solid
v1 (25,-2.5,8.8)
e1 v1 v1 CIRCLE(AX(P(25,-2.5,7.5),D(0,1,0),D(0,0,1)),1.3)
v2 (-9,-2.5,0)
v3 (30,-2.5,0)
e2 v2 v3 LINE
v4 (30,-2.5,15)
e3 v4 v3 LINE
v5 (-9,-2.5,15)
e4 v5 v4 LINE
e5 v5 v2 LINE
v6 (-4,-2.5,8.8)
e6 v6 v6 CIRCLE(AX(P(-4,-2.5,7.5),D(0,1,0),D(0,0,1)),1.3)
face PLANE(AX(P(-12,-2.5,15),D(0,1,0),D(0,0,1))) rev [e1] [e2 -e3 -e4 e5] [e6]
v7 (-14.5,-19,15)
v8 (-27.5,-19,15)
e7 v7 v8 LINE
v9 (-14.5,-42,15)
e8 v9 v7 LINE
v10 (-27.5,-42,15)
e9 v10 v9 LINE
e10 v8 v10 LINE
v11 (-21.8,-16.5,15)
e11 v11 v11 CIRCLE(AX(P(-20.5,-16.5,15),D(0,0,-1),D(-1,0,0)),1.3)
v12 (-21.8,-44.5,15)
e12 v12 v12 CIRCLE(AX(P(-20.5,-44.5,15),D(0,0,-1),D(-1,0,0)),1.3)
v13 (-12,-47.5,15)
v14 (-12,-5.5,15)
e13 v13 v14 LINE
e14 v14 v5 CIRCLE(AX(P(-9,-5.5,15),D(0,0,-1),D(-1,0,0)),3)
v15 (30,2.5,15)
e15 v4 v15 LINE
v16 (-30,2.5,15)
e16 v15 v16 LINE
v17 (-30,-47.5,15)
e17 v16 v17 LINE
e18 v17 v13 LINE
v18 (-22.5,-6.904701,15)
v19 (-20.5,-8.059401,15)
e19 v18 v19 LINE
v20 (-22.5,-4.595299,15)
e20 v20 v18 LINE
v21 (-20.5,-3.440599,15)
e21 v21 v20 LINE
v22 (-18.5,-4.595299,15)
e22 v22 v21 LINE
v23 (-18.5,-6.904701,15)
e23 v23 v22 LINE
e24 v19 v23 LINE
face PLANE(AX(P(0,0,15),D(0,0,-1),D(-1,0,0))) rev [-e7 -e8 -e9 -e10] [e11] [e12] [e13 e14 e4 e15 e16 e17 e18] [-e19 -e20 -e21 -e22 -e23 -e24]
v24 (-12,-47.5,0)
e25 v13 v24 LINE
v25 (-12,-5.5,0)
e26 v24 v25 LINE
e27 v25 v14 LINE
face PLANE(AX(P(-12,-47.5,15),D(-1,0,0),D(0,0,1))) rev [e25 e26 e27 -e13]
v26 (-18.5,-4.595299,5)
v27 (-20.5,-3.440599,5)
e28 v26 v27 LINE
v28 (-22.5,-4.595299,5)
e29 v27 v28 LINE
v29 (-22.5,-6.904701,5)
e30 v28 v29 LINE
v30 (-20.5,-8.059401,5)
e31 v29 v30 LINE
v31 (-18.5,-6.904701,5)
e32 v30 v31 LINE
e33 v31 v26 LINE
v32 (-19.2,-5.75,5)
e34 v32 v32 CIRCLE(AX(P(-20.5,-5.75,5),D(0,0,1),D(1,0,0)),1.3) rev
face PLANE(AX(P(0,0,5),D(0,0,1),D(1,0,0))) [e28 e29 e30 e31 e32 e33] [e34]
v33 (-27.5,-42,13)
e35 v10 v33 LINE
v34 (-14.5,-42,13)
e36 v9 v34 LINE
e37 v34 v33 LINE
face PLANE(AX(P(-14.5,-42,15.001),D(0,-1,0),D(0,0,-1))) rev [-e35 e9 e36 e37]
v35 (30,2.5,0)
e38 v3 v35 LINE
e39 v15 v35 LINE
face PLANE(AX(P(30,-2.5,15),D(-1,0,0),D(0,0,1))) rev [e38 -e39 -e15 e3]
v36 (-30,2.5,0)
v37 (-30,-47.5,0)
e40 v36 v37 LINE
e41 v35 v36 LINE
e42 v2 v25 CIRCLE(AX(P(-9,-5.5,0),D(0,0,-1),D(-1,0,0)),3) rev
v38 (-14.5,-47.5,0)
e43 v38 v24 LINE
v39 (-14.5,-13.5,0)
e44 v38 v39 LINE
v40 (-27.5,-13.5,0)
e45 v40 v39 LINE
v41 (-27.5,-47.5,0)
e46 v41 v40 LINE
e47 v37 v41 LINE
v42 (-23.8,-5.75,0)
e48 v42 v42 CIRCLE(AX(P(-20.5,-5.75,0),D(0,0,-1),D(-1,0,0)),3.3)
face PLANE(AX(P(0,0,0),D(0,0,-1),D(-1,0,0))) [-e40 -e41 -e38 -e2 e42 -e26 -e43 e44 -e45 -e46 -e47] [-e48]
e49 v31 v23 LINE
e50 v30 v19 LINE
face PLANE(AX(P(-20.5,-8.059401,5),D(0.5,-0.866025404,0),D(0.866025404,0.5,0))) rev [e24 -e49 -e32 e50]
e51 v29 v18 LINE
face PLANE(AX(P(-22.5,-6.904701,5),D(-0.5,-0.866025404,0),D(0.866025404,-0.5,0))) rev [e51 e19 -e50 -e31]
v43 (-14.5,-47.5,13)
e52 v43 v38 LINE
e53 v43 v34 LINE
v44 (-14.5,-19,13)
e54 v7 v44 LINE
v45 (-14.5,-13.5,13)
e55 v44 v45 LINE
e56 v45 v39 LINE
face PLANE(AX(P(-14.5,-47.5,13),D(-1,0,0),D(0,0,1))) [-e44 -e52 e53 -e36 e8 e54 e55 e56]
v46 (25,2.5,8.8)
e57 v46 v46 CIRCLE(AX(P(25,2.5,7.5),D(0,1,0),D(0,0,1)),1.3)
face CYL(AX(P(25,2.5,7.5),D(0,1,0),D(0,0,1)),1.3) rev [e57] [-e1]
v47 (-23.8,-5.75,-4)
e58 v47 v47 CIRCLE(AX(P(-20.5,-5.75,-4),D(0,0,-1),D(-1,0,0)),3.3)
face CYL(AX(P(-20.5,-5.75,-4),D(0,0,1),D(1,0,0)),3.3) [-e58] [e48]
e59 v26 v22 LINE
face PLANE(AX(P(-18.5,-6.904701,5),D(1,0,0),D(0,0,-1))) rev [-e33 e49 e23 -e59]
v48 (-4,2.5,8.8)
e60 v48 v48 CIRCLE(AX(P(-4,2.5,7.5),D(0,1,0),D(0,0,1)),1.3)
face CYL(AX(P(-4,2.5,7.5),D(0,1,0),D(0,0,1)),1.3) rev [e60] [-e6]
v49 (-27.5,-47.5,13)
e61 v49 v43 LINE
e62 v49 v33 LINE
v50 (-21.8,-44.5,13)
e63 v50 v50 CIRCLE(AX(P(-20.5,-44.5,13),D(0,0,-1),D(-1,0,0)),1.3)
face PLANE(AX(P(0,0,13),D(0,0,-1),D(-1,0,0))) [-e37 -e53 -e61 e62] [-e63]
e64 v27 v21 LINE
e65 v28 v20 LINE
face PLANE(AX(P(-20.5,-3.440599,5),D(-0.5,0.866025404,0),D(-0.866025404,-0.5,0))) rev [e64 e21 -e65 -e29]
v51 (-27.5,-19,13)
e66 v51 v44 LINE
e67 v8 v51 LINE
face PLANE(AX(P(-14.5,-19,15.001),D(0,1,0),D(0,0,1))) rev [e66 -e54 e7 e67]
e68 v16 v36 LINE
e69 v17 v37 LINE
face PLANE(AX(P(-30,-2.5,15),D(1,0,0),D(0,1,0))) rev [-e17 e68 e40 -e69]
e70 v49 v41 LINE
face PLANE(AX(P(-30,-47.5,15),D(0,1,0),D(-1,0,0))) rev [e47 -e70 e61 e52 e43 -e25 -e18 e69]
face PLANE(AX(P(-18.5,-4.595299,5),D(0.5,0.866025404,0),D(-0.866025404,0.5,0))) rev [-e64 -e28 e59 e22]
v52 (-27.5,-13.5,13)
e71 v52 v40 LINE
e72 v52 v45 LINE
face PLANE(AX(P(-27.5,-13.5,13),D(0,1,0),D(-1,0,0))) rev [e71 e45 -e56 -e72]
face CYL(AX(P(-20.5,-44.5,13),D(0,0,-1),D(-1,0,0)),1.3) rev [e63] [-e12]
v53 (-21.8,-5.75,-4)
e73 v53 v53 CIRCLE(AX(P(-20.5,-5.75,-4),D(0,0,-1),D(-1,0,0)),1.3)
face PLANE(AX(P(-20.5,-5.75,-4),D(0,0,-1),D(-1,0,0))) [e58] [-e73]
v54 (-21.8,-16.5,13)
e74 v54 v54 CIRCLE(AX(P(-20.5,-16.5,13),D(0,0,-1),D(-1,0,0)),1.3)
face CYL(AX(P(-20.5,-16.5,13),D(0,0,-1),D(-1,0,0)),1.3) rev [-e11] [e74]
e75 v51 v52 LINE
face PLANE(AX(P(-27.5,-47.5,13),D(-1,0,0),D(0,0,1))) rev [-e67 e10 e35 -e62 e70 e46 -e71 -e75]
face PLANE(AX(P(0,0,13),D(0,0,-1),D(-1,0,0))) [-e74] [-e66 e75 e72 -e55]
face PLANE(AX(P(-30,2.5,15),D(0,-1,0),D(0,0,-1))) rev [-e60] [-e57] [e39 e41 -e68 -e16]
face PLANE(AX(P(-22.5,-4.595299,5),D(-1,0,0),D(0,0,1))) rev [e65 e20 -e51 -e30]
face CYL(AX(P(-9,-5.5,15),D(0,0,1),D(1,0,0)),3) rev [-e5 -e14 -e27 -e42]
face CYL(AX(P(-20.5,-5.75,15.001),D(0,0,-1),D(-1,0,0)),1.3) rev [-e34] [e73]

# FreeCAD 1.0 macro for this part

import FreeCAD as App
import Part
import Sketcher

V = App.Vector
Q = App.Units.Quantity


def edges_at(feature, points):
    """Names of the edges that pass closest to the given points."""
    edges = feature.Shape.Edges
    near = lambda p: min(range(len(edges)), key=lambda i: edges[i].distToShape(Part.Vertex(*p))[0])
    return sorted({f"Edge{near(p) + 1}" for p in points})

doc = App.newDocument("Part")
body = doc.addObject("PartDesign::Body", "Body")

sketch1 = doc.addObject("Sketcher::SketchObject", "Sketch")
body.addObject(sketch1)
sketch1.AttachmentSupport = (doc.XY_Plane, [""])
sketch1.MapMode = "FlatFace"
sketch1.addGeometry([
    Part.LineSegment(V(-30, 2, 0), V(-30, -48, 0)),
    Part.LineSegment(V(-30, -48, 0), V(-12, -48, 0)),
    Part.LineSegment(V(-12, -48, 0), V(-12, -2, 0)),
    Part.LineSegment(V(-12, -2, 0), V(30, -2, 0)),
    Part.LineSegment(V(30, -2, 0), V(30, 2, 0)),
    Part.LineSegment(V(30, 2, 0), V(-30, 2, 0)),
], False)
sketch1.addConstraint([
    Sketcher.Constraint("Coincident", 0, 2, 1, 1),
    Sketcher.Constraint("Coincident", 1, 2, 2, 1),
    Sketcher.Constraint("Coincident", 2, 2, 3, 1),
    Sketcher.Constraint("Coincident", 3, 2, 4, 1),
    Sketcher.Constraint("Coincident", 4, 2, 5, 1),
    Sketcher.Constraint("Coincident", 5, 2, 0, 1),
    Sketcher.Constraint("Vertical", 0),
    Sketcher.Constraint("Horizontal", 1),
    Sketcher.Constraint("Vertical", 2),
    Sketcher.Constraint("Horizontal", 3),
    Sketcher.Constraint("Vertical", 4),
    Sketcher.Constraint("Horizontal", 5),
    Sketcher.Constraint("Symmetric", 3, 2, 5, 2, -1, 1),
    Sketcher.Constraint("DistanceX", 1, 1, 1, 2, Q("18 mm")),
    Sketcher.Constraint("DistanceX", 3, 1, 3, 2, Q("42 mm")),
    Sketcher.Constraint("DistanceY", 0, 2, 0, 1, Q("50 mm")),
    Sketcher.Constraint("DistanceY", 2, 1, 2, 2, Q("45 mm")),
])
pad1 = doc.addObject("PartDesign::Pad", "Pad")
body.addObject(pad1)
pad1.Profile = sketch1
pad1.Length = 15

sketch2 = doc.addObject("Sketcher::SketchObject", "Sketch001")
body.addObject(sketch2)
sketch2.AttachmentSupport = (doc.XZ_Plane, [""])
sketch2.MapMode = "FlatFace"
sketch2.AttachmentOffset = App.Placement(V(0, 0, -2.5), App.Rotation())
sketch2.addGeometry([
    Part.Circle(V(25, 7.5, 0), V(0, 0, 1), 1.3),
    Part.Circle(V(-4, 7.5, 0), V(0, 0, 1), 1.3),
], False)
sketch2.addConstraint([
    Sketcher.Constraint("Equal", 0, 1),
    Sketcher.Constraint("Horizontal", 0, 3, 1, 3),
    Sketcher.Constraint("Diameter", 0, Q("2.6 mm")),
    Sketcher.Constraint("DistanceX", -1, 1, 0, 3, Q("25 mm")),
    Sketcher.Constraint("DistanceX", 1, 3, -1, 1, Q("4 mm")),
    Sketcher.Constraint("DistanceY", -1, 1, 0, 3, Q("7.5 mm")),
])
doc.recompute()
hole = doc.addObject("PartDesign::Hole", "Hole")
body.addObject(hole)
hole.Profile = sketch2
hole.ThreadType = "None"
hole.Diameter = 2.6
hole.DepthType = "Dimension"
hole.Depth = 5
hole.DrillPoint = "Flat"
hole.Reversed = True

sketch3 = doc.addObject("Sketcher::SketchObject", "Sketch002")
body.addObject(sketch3)
sketch3.AttachmentSupport = (doc.XY_Plane, [""])
sketch3.MapMode = "FlatFace"
sketch3.addGeometry([
    Part.LineSegment(V(-14, -14, 0), V(-14, -48, 0)),
    Part.LineSegment(V(-14, -48, 0), V(-28, -48, 0)),
    Part.LineSegment(V(-28, -48, 0), V(-28, -14, 0)),
    Part.LineSegment(V(-28, -14, 0), V(-14, -14, 0)),
], False)
sketch3.addConstraint([
    Sketcher.Constraint("Coincident", 0, 2, 1, 1),
    Sketcher.Constraint("Coincident", 1, 2, 2, 1),
    Sketcher.Constraint("Coincident", 2, 2, 3, 1),
    Sketcher.Constraint("Coincident", 3, 2, 0, 1),
    Sketcher.Constraint("Vertical", 0),
    Sketcher.Constraint("Horizontal", 1),
    Sketcher.Constraint("Vertical", 2),
    Sketcher.Constraint("Horizontal", 3),
    Sketcher.Constraint("DistanceX", 1, 2, 1, 1, Q("13 mm")),
    Sketcher.Constraint("DistanceY", 0, 2, 0, 1, Q("34 mm")),
    Sketcher.Constraint("DistanceX", 0, 2, -1, 1, Q("14.5 mm")),
    Sketcher.Constraint("DistanceY", 0, 2, -1, 1, Q("47.5 mm")),
])
pocket1 = doc.addObject("PartDesign::Pocket", "Pocket")
body.addObject(pocket1)
pocket1.Profile = sketch3
pocket1.Length = 13
pocket1.Reversed = True

sketch4 = doc.addObject("Sketcher::SketchObject", "Sketch003")
body.addObject(sketch4)
sketch4.AttachmentSupport = (doc.XY_Plane, [""])
sketch4.MapMode = "FlatFace"
sketch4.AttachmentOffset = App.Placement(V(0, 0, 13), App.Rotation())
sketch4.addGeometry([
    Part.LineSegment(V(-14, -19, 0), V(-14, -42, 0)),
    Part.LineSegment(V(-14, -42, 0), V(-28, -42, 0)),
    Part.LineSegment(V(-28, -42, 0), V(-28, -19, 0)),
    Part.LineSegment(V(-28, -19, 0), V(-14, -19, 0)),
], False)
sketch4.addConstraint([
    Sketcher.Constraint("Coincident", 0, 2, 1, 1),
    Sketcher.Constraint("Coincident", 1, 2, 2, 1),
    Sketcher.Constraint("Coincident", 2, 2, 3, 1),
    Sketcher.Constraint("Coincident", 3, 2, 0, 1),
    Sketcher.Constraint("Vertical", 0),
    Sketcher.Constraint("Horizontal", 1),
    Sketcher.Constraint("Vertical", 2),
    Sketcher.Constraint("Horizontal", 3),
    Sketcher.Constraint("DistanceX", 1, 2, 1, 1, Q("13 mm")),
    Sketcher.Constraint("DistanceY", 0, 2, 0, 1, Q("23 mm")),
    Sketcher.Constraint("DistanceY", 0, 2, -1, 1, Q("42 mm")),
    Sketcher.Constraint("DistanceX", 0, 2, -1, 1, Q("14.5 mm")),
])
pocket2 = doc.addObject("PartDesign::Pocket", "Pocket001")
body.addObject(pocket2)
pocket2.Profile = sketch4
pocket2.Type = "UpToFirst"
pocket2.Reversed = True

sketch5 = doc.addObject("Sketcher::SketchObject", "Sketch004")
body.addObject(sketch5)
sketch5.AttachmentSupport = (doc.XY_Plane, [""])
sketch5.MapMode = "FlatFace"
sketch5.AttachmentOffset = App.Placement(V(0, 0, 13), App.Rotation())
sketch5.addGeometry([
    Part.Circle(V(-20.5, -16.5, 0), V(0, 0, 1), 1.3),
    Part.Circle(V(-20.5, -44.5, 0), V(0, 0, 1), 1.3),
], False)
sketch5.addConstraint([
    Sketcher.Constraint("Equal", 0, 1),
    Sketcher.Constraint("Vertical", 0, 3, 1, 3),
    Sketcher.Constraint("Diameter", 0, Q("2.6 mm")),
    Sketcher.Constraint("DistanceY", 1, 3, 0, 3, Q("28 mm")),
    Sketcher.Constraint("DistanceX", 0, 3, -1, 1, Q("20.5 mm")),
    Sketcher.Constraint("DistanceY", 0, 3, -1, 1, Q("16.5 mm")),
])
doc.recompute()
hole2 = doc.addObject("PartDesign::Hole", "Hole001")
body.addObject(hole2)
hole2.Profile = sketch5
hole2.ThreadType = "None"
hole2.Diameter = 2.6
hole2.DepthType = "Dimension"
hole2.Depth = 2
hole2.DrillPoint = "Flat"
hole2.Reversed = True

sketch6 = doc.addObject("Sketcher::SketchObject", "Sketch005")
body.addObject(sketch6)
sketch6.AttachmentSupport = (doc.XY_Plane, [""])
sketch6.MapMode = "FlatFace"
sketch6.addGeometry(Part.Circle(V(-20.5, -5.8, 0), V(0, 0, 1), 3.3), False)
sketch6.addConstraint([
    Sketcher.Constraint("Diameter", 0, Q("6.6 mm")),
    Sketcher.Constraint("DistanceX", 0, 3, -1, 1, Q("20.5 mm")),
    Sketcher.Constraint("DistanceY", 0, 3, -1, 1, Q("5.75 mm")),
])
pad2 = doc.addObject("PartDesign::Pad", "Pad001")
body.addObject(pad2)
pad2.Profile = sketch6
pad2.Length = 4
pad2.Reversed = True

sketch7 = doc.addObject("Sketcher::SketchObject", "Sketch006")
body.addObject(sketch7)
sketch7.AttachmentSupport = (doc.XY_Plane, [""])
sketch7.MapMode = "FlatFace"
sketch7.AttachmentOffset = App.Placement(V(0, 0, -4), App.Rotation())
sketch7.addGeometry(Part.Circle(V(-20.5, -5.8, 0), V(0, 0, 1), 1.3), False)
sketch7.addConstraint([
    Sketcher.Constraint("Diameter", 0, Q("2.6 mm")),
    Sketcher.Constraint("DistanceX", 0, 3, -1, 1, Q("20.5 mm")),
    Sketcher.Constraint("DistanceY", 0, 3, -1, 1, Q("5.75 mm")),
])
pocket3 = doc.addObject("PartDesign::Pocket", "Pocket002")
body.addObject(pocket3)
pocket3.Profile = sketch7
pocket3.Type = "UpToFirst"
pocket3.Reversed = True

sketch8 = doc.addObject("Sketcher::SketchObject", "Sketch007")
body.addObject(sketch8)
sketch8.AttachmentSupport = (doc.XY_Plane, [""])
sketch8.MapMode = "FlatFace"
sketch8.AttachmentOffset = App.Placement(V(0, 0, 15), App.Rotation())
sketch8.addGeometry([
    Part.LineSegment(V(-18.5, -6.9, 0), V(-18.5, -4.6, 0)),
    Part.LineSegment(V(-18.5, -4.6, 0), V(-20.5, -3.4, 0)),
    Part.LineSegment(V(-20.5, -3.4, 0), V(-22.5, -4.6, 0)),
    Part.LineSegment(V(-22.5, -4.6, 0), V(-22.5, -6.9, 0)),
    Part.LineSegment(V(-22.5, -6.9, 0), V(-20.5, -8.1, 0)),
    Part.LineSegment(V(-20.5, -8.1, 0), V(-18.5, -6.9, 0)),
], False)
sketch8.addConstraint([
    Sketcher.Constraint("Coincident", 0, 2, 1, 1),
    Sketcher.Constraint("Coincident", 1, 2, 2, 1),
    Sketcher.Constraint("Coincident", 2, 2, 3, 1),
    Sketcher.Constraint("Coincident", 3, 2, 4, 1),
    Sketcher.Constraint("Coincident", 4, 2, 5, 1),
    Sketcher.Constraint("Coincident", 5, 2, 0, 1),
    Sketcher.Constraint("Vertical", 0),
    Sketcher.Constraint("Vertical", 3),
    Sketcher.Constraint("Parallel", 1, 4),
    Sketcher.Constraint("Parallel", 2, 5),
    Sketcher.Constraint("Horizontal", 0, 2, 2, 2),
    Sketcher.Constraint("Horizontal", 3, 2, 5, 2),
    Sketcher.Constraint("Vertical", 1, 2, 4, 2),
    Sketcher.Constraint("Angle", 1, Q("150 deg")),
    Sketcher.Constraint("DistanceX", 1, 2, 0, 2, Q("2 mm")),
    Sketcher.Constraint("DistanceX", 0, 2, -1, 1, Q("18.5 mm")),
    Sketcher.Constraint("DistanceY", 0, 1, 0, 2, Q("2.309401 mm")),
    Sketcher.Constraint("DistanceY", 0, 2, -1, 1, Q("4.595299 mm")),
])
pocket4 = doc.addObject("PartDesign::Pocket", "Pocket003")
body.addObject(pocket4)
pocket4.Profile = sketch8
pocket4.Length = 10
doc.recompute()

fillet = doc.addObject("PartDesign::Fillet", "Fillet")
body.addObject(fillet)
fillet.Base = (pocket4, edges_at(pocket4, [(-12, -2.5, 7.5)]))
fillet.Radius = 3

doc.recompute()
